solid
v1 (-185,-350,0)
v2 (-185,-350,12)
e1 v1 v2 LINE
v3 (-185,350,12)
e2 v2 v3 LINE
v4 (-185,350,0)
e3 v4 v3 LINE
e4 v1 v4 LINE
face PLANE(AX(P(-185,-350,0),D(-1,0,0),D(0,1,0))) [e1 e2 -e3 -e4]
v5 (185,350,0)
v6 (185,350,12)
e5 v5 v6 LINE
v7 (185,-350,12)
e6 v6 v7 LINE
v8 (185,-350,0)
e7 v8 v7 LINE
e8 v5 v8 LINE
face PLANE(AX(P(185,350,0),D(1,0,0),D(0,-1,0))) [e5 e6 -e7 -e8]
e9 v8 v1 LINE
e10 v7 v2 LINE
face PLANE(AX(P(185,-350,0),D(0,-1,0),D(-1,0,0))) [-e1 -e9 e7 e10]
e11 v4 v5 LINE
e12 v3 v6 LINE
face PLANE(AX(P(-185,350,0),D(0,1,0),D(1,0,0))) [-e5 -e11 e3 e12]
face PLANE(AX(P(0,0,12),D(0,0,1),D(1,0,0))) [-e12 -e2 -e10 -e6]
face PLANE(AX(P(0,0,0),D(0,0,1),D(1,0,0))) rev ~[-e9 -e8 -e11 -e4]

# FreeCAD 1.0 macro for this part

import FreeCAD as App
import Part
import Sketcher
Q = App.Units.Quantity

doc = App.newDocument("Part")
body = doc.addObject("PartDesign::Body", "Body")

sketch1 = body.newObject("Sketcher::SketchObject", "Sketch")
sketch1.AttachmentSupport = (doc.getObject("XY_Plane"), [""])
sketch1.MapMode = "FlatFace"
sketch1.addGeometry(Part.LineSegment(App.Vector(-185, -350, 0), App.Vector(185, -350, 0)), False)
sketch1.addGeometry(Part.LineSegment(App.Vector(185, -350, 0), App.Vector(185, 350, 0)), False)
sketch1.addGeometry(Part.LineSegment(App.Vector(185, 350, 0), App.Vector(-185, 350, 0)), False)
sketch1.addGeometry(Part.LineSegment(App.Vector(-185, 350, 0), App.Vector(-185, -350, 0)), False)
sketch1.addConstraint(Sketcher.Constraint("Coincident", 0, 2, 1, 1))
sketch1.addConstraint(Sketcher.Constraint("Coincident", 1, 2, 2, 1))
sketch1.addConstraint(Sketcher.Constraint("Coincident", 2, 2, 3, 1))
sketch1.addConstraint(Sketcher.Constraint("Coincident", 3, 2, 0, 1))
sketch1.addConstraint(Sketcher.Constraint("Horizontal", 0))
sketch1.addConstraint(Sketcher.Constraint("Vertical", 1))
sketch1.addConstraint(Sketcher.Constraint("Horizontal", 2))
sketch1.addConstraint(Sketcher.Constraint("Vertical", 3))
sketch1.addConstraint(Sketcher.Constraint("Symmetric", 0, 2, 2, 2, -1, 1))
sketch1.addConstraint(Sketcher.Constraint("DistanceX", 0, 1, 0, 2, Q("370 mm")))
sketch1.addConstraint(Sketcher.Constraint("DistanceY", 1, 1, 1, 2, Q("700 mm")))
pad1 = body.newObject("PartDesign::Pad", "Pad")
pad1.Profile = sketch1
pad1.Length = 12

doc.recompute()
